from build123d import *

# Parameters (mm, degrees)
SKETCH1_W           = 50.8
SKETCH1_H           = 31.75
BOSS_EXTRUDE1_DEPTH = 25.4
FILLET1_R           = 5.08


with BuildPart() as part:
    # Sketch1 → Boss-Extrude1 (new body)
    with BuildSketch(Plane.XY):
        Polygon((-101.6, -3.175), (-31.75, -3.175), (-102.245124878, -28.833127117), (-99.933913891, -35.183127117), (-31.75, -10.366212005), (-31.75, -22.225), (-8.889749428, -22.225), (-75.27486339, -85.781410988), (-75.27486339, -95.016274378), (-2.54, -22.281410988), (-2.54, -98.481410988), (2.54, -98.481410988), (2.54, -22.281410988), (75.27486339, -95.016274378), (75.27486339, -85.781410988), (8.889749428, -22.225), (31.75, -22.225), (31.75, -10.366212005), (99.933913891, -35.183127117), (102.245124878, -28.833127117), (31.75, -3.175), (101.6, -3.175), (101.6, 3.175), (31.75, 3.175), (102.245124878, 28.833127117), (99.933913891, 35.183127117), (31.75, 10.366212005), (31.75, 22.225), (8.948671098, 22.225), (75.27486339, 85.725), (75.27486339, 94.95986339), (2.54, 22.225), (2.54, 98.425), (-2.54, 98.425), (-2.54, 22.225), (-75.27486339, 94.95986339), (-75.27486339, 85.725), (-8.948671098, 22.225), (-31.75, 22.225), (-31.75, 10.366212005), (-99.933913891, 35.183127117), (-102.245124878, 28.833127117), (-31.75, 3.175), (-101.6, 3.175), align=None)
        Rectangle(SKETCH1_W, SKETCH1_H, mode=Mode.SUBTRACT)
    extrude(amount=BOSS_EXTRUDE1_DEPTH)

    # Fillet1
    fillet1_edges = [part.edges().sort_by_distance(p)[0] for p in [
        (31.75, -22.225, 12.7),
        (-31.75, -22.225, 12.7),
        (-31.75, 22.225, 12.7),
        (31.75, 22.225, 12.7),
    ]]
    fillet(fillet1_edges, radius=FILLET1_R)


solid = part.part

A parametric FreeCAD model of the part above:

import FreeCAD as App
import Part
import Sketcher
Q = App.Units.Quantity


def edges_at(feature, points):
    """Names of the edges that pass closest to the given points."""
    edges = feature.Shape.Edges
    near = lambda p: min(range(len(edges)), key=lambda i: edges[i].distToShape(Part.Vertex(*p))[0])
    return sorted({f"Edge{near(p) + 1}" for p in points})

doc = App.newDocument("Part")
body = doc.addObject("PartDesign::Body", "Body")

# Sketch on XY plane
sketch1 = body.newObject("Sketcher::SketchObject", "Sketch")
sketch1.AttachmentSupport = (doc.getObject("XY_Plane"), [""])
sketch1.MapMode = "FlatFace"
sketch1.addGeometry([
    Part.LineSegment(App.Vector(-101.6, -3.175, 0), App.Vector(-31.75, -3.175, 0)),  # 0
    Part.LineSegment(App.Vector(-31.75, -3.175, 0), App.Vector(-102.245125, -28.833127, 0)),  # 1
    Part.LineSegment(App.Vector(-102.245125, -28.833127, 0), App.Vector(-99.933914, -35.183127, 0)),  # 2
    Part.LineSegment(App.Vector(-99.933914, -35.183127, 0), App.Vector(-31.75, -10.366212, 0)),  # 3
    Part.LineSegment(App.Vector(-31.75, -10.366212, 0), App.Vector(-31.75, -22.225, 0)),  # 4
    Part.LineSegment(App.Vector(-31.75, -22.225, 0), App.Vector(-8.889749, -22.225, 0)),  # 5
    Part.LineSegment(App.Vector(-8.889749, -22.225, 0), App.Vector(-75.274863, -85.781411, 0)),  # 6
    Part.LineSegment(App.Vector(-75.274863, -85.781411, 0), App.Vector(-75.274863, -95.016274, 0)),  # 7
    Part.LineSegment(App.Vector(-75.274863, -95.016274, 0), App.Vector(-2.54, -22.281411, 0)),  # 8
    Part.LineSegment(App.Vector(-2.54, -22.281411, 0), App.Vector(-2.54, -98.481411, 0)),  # 9
    Part.LineSegment(App.Vector(-2.54, -98.481411, 0), App.Vector(2.54, -98.481411, 0)),  # 10
    Part.LineSegment(App.Vector(2.54, -98.481411, 0), App.Vector(2.54, -22.281411, 0)),  # 11
    Part.LineSegment(App.Vector(2.54, -22.281411, 0), App.Vector(75.274863, -95.016274, 0)),  # 12
    Part.LineSegment(App.Vector(75.274863, -95.016274, 0), App.Vector(75.274863, -85.781411, 0)),  # 13
    Part.LineSegment(App.Vector(75.274863, -85.781411, 0), App.Vector(8.889749, -22.225, 0)),  # 14
    Part.LineSegment(App.Vector(8.889749, -22.225, 0), App.Vector(31.75, -22.225, 0)),  # 15
    Part.LineSegment(App.Vector(31.75, -22.225, 0), App.Vector(31.75, -10.366212, 0)),  # 16
    Part.LineSegment(App.Vector(31.75, -10.366212, 0), App.Vector(99.933914, -35.183127, 0)),  # 17
    Part.LineSegment(App.Vector(99.933914, -35.183127, 0), App.Vector(102.245125, -28.833127, 0)),  # 18
    Part.LineSegment(App.Vector(102.245125, -28.833127, 0), App.Vector(31.75, -3.175, 0)),  # 19
    Part.LineSegment(App.Vector(31.75, -3.175, 0), App.Vector(101.6, -3.175, 0)),  # 20
    Part.LineSegment(App.Vector(101.6, -3.175, 0), App.Vector(101.6, 3.175, 0)),  # 21
    Part.LineSegment(App.Vector(101.6, 3.175, 0), App.Vector(31.75, 3.175, 0)),  # 22
    Part.LineSegment(App.Vector(31.75, 3.175, 0), App.Vector(102.245125, 28.833127, 0)),  # 23
    Part.LineSegment(App.Vector(102.245125, 28.833127, 0), App.Vector(99.933914, 35.183127, 0)),  # 24
    Part.LineSegment(App.Vector(99.933914, 35.183127, 0), App.Vector(31.75, 10.366212, 0)),  # 25
    Part.LineSegment(App.Vector(31.75, 10.366212, 0), App.Vector(31.75, 22.225, 0)),  # 26
    Part.LineSegment(App.Vector(31.75, 22.225, 0), App.Vector(8.948671, 22.225, 0)),  # 27
    Part.LineSegment(App.Vector(8.948671, 22.225, 0), App.Vector(75.274863, 85.725, 0)),  # 28
    Part.LineSegment(App.Vector(75.274863, 85.725, 0), App.Vector(75.274863, 94.959863, 0)),  # 29
    Part.LineSegment(App.Vector(75.274863, 94.959863, 0), App.Vector(2.54, 22.225, 0)),  # 30
    Part.LineSegment(App.Vector(2.54, 22.225, 0), App.Vector(2.54, 98.425, 0)),  # 31
    Part.LineSegment(App.Vector(2.54, 98.425, 0), App.Vector(-2.54, 98.425, 0)),  # 32
    Part.LineSegment(App.Vector(-2.54, 98.425, 0), App.Vector(-2.54, 22.225, 0)),  # 33
    Part.LineSegment(App.Vector(-2.54, 22.225, 0), App.Vector(-75.274863, 94.959863, 0)),  # 34
    Part.LineSegment(App.Vector(-75.274863, 94.959863, 0), App.Vector(-75.274863, 85.725, 0)),  # 35
    Part.LineSegment(App.Vector(-75.274863, 85.725, 0), App.Vector(-8.948671, 22.225, 0)),  # 36
    Part.LineSegment(App.Vector(-8.948671, 22.225, 0), App.Vector(-31.75, 22.225, 0)),  # 37
    Part.LineSegment(App.Vector(-31.75, 22.225, 0), App.Vector(-31.75, 10.366212, 0)),  # 38
    Part.LineSegment(App.Vector(-31.75, 10.366212, 0), App.Vector(-99.933914, 35.183127, 0)),  # 39
    Part.LineSegment(App.Vector(-99.933914, 35.183127, 0), App.Vector(-102.245125, 28.833127, 0)),  # 40
    Part.LineSegment(App.Vector(-102.245125, 28.833127, 0), App.Vector(-31.75, 3.175, 0)),  # 41
    Part.LineSegment(App.Vector(-31.75, 3.175, 0), App.Vector(-101.6, 3.175, 0)),  # 42
    Part.LineSegment(App.Vector(-101.6, 3.175, 0), App.Vector(-101.6, -3.175, 0)),  # 43
    Part.LineSegment(App.Vector(25.4, -15.875, 0), App.Vector(-25.4, -15.875, 0)),  # 44
    Part.LineSegment(App.Vector(-25.4, -15.875, 0), App.Vector(-25.4, 15.875, 0)),  # 45
    Part.LineSegment(App.Vector(-25.4, 15.875, 0), App.Vector(25.4, 15.875, 0)),  # 46
    Part.LineSegment(App.Vector(25.4, 15.875, 0), App.Vector(25.4, -15.875, 0)),  # 47
], False)
sketch1.addConstraint([
    Sketcher.Constraint("Coincident", 0, 2, 1, 1),
    Sketcher.Constraint("Coincident", 1, 2, 2, 1),
    Sketcher.Constraint("Coincident", 2, 2, 3, 1),
    Sketcher.Constraint("Coincident", 3, 2, 4, 1),
    Sketcher.Constraint("Coincident", 4, 2, 5, 1),
    Sketcher.Constraint("Coincident", 5, 2, 6, 1),
    Sketcher.Constraint("Coincident", 6, 2, 7, 1),
    Sketcher.Constraint("Coincident", 7, 2, 8, 1),
    Sketcher.Constraint("Coincident", 8, 2, 9, 1),
    Sketcher.Constraint("Coincident", 9, 2, 10, 1),
    Sketcher.Constraint("Coincident", 10, 2, 11, 1),
    Sketcher.Constraint("Coincident", 11, 2, 12, 1),
    Sketcher.Constraint("Coincident", 12, 2, 13, 1),
    Sketcher.Constraint("Coincident", 13, 2, 14, 1),
    Sketcher.Constraint("Coincident", 14, 2, 15, 1),
    Sketcher.Constraint("Coincident", 15, 2, 16, 1),
    Sketcher.Constraint("Coincident", 16, 2, 17, 1),
    Sketcher.Constraint("Coincident", 17, 2, 18, 1),
    Sketcher.Constraint("Coincident", 18, 2, 19, 1),
    Sketcher.Constraint("Coincident", 19, 2, 20, 1),
    Sketcher.Constraint("Coincident", 20, 2, 21, 1),
    Sketcher.Constraint("Coincident", 21, 2, 22, 1),
    Sketcher.Constraint("Coincident", 22, 2, 23, 1),
    Sketcher.Constraint("Coincident", 23, 2, 24, 1),
    Sketcher.Constraint("Coincident", 24, 2, 25, 1),
    Sketcher.Constraint("Coincident", 25, 2, 26, 1),
    Sketcher.Constraint("Coincident", 26, 2, 27, 1),
    Sketcher.Constraint("Coincident", 27, 2, 28, 1),
    Sketcher.Constraint("Coincident", 28, 2, 29, 1),
    Sketcher.Constraint("Coincident", 29, 2, 30, 1),
    Sketcher.Constraint("Coincident", 30, 2, 31, 1),
    Sketcher.Constraint("Coincident", 31, 2, 32, 1),
    Sketcher.Constraint("Coincident", 32, 2, 33, 1),
    Sketcher.Constraint("Coincident", 33, 2, 34, 1),
    Sketcher.Constraint("Coincident", 34, 2, 35, 1),
    Sketcher.Constraint("Coincident", 35, 2, 36, 1),
    Sketcher.Constraint("Coincident", 36, 2, 37, 1),
    Sketcher.Constraint("Coincident", 37, 2, 38, 1),
    Sketcher.Constraint("Coincident", 38, 2, 39, 1),
    Sketcher.Constraint("Coincident", 39, 2, 40, 1),
    Sketcher.Constraint("Coincident", 40, 2, 41, 1),
    Sketcher.Constraint("Coincident", 41, 2, 42, 1),
    Sketcher.Constraint("Coincident", 42, 2, 43, 1),
    Sketcher.Constraint("Coincident", 43, 2, 0, 1),
    Sketcher.Constraint("Coincident", 44, 2, 45, 1),
    Sketcher.Constraint("Coincident", 45, 2, 46, 1),
    Sketcher.Constraint("Coincident", 46, 2, 47, 1),
    Sketcher.Constraint("Coincident", 47, 2, 44, 1),
    Sketcher.Constraint("Horizontal", 0),
    Sketcher.Constraint("Vertical", 4),
    Sketcher.Constraint("Horizontal", 5),
    Sketcher.Constraint("Vertical", 7),
    Sketcher.Constraint("Vertical", 9),
    Sketcher.Constraint("Horizontal", 10),
    Sketcher.Constraint("Vertical", 11),
    Sketcher.Constraint("Vertical", 13),
    Sketcher.Constraint("Horizontal", 15),
    Sketcher.Constraint("Vertical", 16),
    Sketcher.Constraint("Horizontal", 20),
    Sketcher.Constraint("Vertical", 21),
    Sketcher.Constraint("Horizontal", 22),
    Sketcher.Constraint("Vertical", 26),
    Sketcher.Constraint("Horizontal", 27),
    Sketcher.Constraint("Vertical", 29),
    Sketcher.Constraint("Vertical", 31),
    Sketcher.Constraint("Horizontal", 32),
    Sketcher.Constraint("Vertical", 33),
    Sketcher.Constraint("Vertical", 35),
    Sketcher.Constraint("Horizontal", 37),
    Sketcher.Constraint("Vertical", 38),
    Sketcher.Constraint("Horizontal", 42),
    Sketcher.Constraint("Vertical", 43),
    Sketcher.Constraint("Horizontal", 44),
    Sketcher.Constraint("Vertical", 45),
    Sketcher.Constraint("Horizontal", 46),
    Sketcher.Constraint("Vertical", 47),
    Sketcher.Constraint("Symmetric", 0, 2, 22, 2, -1, 1),
    Sketcher.Constraint("Symmetric", 1, 2, 23, 2, -1, 1),
    Sketcher.Constraint("Symmetric", 2, 2, 24, 2, -1, 1),
    Sketcher.Constraint("Symmetric", 3, 2, 25, 2, -1, 1),
    Sketcher.Constraint("Symmetric", 15, 2, 37, 2, -1, 1),
    Sketcher.Constraint("Symmetric", 17, 2, 39, 2, -1, 1),
    Sketcher.Constraint("Symmetric", 18, 2, 40, 2, -1, 1),
    Sketcher.Constraint("Symmetric", 19, 2, 41, 2, -1, 1),
    Sketcher.Constraint("Symmetric", 44, 2, 46, 2, -1, 1),
    Sketcher.Constraint("Symmetric", 8, 2, 11, 2, -2),
    Sketcher.Constraint("Symmetric", 7, 2, 12, 2, -2),
    Sketcher.Constraint("Symmetric", 5, 2, 14, 2, -2),
    Sketcher.Constraint("Symmetric", 3, 2, 16, 2, -2),
    Sketcher.Constraint("Symmetric", 2, 2, 17, 2, -2),
    Sketcher.Constraint("Symmetric", 1, 2, 18, 2, -2),
    Sketcher.Constraint("Symmetric", 0, 2, 19, 2, -2),
    Sketcher.Constraint("Symmetric", 30, 2, 33, 2, -2),
    Sketcher.Constraint("Symmetric", 29, 2, 34, 2, -2),
    Sketcher.Constraint("Symmetric", 27, 2, 36, 2, -2),
    Sketcher.Constraint("Perpendicular", 1, 2),
    Sketcher.Constraint("Perpendicular", 2, 3),
    Sketcher.Constraint("Perpendicular", 8, 12),
    Sketcher.Constraint("Parallel", 6, 28),
    Sketcher.Constraint("Perpendicular", 12, 30),
    Sketcher.Constraint("Parallel", 14, 36),
    Sketcher.Constraint("Parallel", 19, 39),
    Sketcher.Constraint("Horizontal", 6, 2, 13, 2),
    Sketcher.Constraint("Horizontal", 27, 2, 30, 2),
    Sketcher.Constraint("Vertical", 0, 2, 3, 2),
    Sketcher.Constraint("Vertical", 13, 2, 28, 2),
    Sketcher.Constraint("Vertical", 11, 2, 30, 2),
    Sketcher.Constraint("Equal", 0, 20),
    Sketcher.Constraint("Equal", 13, 29),
    Sketcher.Constraint("Equal", 11, 31),
    Sketcher.Constraint("DistanceX", 44, 2, 44, 1, Q("2 in")),
    Sketcher.Constraint("DistanceY", 9, 2, 9, 1, Q("3 in")),
    Sketcher.Constraint("DistanceX", 10, 1, 10, 2, Q("0.2 in")),
    Sketcher.Constraint("DistanceX", -1, 1, 20, 2, Q("4 in")),
    Sketcher.Constraint("Angle", 1, Q("-160 deg")),
    Sketcher.Constraint("DistanceY", 15, 2, 22, 2, Q("1 in")),
    Sketcher.Constraint("DistanceX", 0, 1, 0, 2, Q("2.75 in")),
    Sketcher.Constraint("DistanceY", 21, 1, 21, 2, Q("0.25 in")),
    Sketcher.Constraint("DistanceY", 45, 1, 45, 2, Q("1.25 in")),
    Sketcher.Constraint("DistanceY", 6, 2, 8, 2, Q("2.5 in")),
    Sketcher.Constraint("DistanceY", 2, 2, 1, 2, Q("0.25 in")),
    Sketcher.Constraint("DistanceX", 5, 1, 5, 2, 22.860251),
    Sketcher.Constraint("DistanceX", 27, 2, 27, 1, 22.801329),
    Sketcher.Constraint("Distance", 8, 102.86263),
    Sketcher.Constraint("DistanceX", 2, 2, 6, 2, 24.659051),
])
pad1 = body.newObject("PartDesign::Pad", "Pad")
pad1.Profile = sketch1
pad1.Length = Q("1 in")
doc.recompute()

fillet = body.newObject("PartDesign::Fillet", "Fillet")
fillet.Base = (pad1, edges_at(pad1, [
    (31.75, -22.225, 12.7),
    (-31.75, -22.225, 12.7),
    (-31.75, 22.225, 12.7),
    (31.75, 22.225, 12.7),
]))
fillet.Radius = Q("0.2 in")

doc.recompute()
